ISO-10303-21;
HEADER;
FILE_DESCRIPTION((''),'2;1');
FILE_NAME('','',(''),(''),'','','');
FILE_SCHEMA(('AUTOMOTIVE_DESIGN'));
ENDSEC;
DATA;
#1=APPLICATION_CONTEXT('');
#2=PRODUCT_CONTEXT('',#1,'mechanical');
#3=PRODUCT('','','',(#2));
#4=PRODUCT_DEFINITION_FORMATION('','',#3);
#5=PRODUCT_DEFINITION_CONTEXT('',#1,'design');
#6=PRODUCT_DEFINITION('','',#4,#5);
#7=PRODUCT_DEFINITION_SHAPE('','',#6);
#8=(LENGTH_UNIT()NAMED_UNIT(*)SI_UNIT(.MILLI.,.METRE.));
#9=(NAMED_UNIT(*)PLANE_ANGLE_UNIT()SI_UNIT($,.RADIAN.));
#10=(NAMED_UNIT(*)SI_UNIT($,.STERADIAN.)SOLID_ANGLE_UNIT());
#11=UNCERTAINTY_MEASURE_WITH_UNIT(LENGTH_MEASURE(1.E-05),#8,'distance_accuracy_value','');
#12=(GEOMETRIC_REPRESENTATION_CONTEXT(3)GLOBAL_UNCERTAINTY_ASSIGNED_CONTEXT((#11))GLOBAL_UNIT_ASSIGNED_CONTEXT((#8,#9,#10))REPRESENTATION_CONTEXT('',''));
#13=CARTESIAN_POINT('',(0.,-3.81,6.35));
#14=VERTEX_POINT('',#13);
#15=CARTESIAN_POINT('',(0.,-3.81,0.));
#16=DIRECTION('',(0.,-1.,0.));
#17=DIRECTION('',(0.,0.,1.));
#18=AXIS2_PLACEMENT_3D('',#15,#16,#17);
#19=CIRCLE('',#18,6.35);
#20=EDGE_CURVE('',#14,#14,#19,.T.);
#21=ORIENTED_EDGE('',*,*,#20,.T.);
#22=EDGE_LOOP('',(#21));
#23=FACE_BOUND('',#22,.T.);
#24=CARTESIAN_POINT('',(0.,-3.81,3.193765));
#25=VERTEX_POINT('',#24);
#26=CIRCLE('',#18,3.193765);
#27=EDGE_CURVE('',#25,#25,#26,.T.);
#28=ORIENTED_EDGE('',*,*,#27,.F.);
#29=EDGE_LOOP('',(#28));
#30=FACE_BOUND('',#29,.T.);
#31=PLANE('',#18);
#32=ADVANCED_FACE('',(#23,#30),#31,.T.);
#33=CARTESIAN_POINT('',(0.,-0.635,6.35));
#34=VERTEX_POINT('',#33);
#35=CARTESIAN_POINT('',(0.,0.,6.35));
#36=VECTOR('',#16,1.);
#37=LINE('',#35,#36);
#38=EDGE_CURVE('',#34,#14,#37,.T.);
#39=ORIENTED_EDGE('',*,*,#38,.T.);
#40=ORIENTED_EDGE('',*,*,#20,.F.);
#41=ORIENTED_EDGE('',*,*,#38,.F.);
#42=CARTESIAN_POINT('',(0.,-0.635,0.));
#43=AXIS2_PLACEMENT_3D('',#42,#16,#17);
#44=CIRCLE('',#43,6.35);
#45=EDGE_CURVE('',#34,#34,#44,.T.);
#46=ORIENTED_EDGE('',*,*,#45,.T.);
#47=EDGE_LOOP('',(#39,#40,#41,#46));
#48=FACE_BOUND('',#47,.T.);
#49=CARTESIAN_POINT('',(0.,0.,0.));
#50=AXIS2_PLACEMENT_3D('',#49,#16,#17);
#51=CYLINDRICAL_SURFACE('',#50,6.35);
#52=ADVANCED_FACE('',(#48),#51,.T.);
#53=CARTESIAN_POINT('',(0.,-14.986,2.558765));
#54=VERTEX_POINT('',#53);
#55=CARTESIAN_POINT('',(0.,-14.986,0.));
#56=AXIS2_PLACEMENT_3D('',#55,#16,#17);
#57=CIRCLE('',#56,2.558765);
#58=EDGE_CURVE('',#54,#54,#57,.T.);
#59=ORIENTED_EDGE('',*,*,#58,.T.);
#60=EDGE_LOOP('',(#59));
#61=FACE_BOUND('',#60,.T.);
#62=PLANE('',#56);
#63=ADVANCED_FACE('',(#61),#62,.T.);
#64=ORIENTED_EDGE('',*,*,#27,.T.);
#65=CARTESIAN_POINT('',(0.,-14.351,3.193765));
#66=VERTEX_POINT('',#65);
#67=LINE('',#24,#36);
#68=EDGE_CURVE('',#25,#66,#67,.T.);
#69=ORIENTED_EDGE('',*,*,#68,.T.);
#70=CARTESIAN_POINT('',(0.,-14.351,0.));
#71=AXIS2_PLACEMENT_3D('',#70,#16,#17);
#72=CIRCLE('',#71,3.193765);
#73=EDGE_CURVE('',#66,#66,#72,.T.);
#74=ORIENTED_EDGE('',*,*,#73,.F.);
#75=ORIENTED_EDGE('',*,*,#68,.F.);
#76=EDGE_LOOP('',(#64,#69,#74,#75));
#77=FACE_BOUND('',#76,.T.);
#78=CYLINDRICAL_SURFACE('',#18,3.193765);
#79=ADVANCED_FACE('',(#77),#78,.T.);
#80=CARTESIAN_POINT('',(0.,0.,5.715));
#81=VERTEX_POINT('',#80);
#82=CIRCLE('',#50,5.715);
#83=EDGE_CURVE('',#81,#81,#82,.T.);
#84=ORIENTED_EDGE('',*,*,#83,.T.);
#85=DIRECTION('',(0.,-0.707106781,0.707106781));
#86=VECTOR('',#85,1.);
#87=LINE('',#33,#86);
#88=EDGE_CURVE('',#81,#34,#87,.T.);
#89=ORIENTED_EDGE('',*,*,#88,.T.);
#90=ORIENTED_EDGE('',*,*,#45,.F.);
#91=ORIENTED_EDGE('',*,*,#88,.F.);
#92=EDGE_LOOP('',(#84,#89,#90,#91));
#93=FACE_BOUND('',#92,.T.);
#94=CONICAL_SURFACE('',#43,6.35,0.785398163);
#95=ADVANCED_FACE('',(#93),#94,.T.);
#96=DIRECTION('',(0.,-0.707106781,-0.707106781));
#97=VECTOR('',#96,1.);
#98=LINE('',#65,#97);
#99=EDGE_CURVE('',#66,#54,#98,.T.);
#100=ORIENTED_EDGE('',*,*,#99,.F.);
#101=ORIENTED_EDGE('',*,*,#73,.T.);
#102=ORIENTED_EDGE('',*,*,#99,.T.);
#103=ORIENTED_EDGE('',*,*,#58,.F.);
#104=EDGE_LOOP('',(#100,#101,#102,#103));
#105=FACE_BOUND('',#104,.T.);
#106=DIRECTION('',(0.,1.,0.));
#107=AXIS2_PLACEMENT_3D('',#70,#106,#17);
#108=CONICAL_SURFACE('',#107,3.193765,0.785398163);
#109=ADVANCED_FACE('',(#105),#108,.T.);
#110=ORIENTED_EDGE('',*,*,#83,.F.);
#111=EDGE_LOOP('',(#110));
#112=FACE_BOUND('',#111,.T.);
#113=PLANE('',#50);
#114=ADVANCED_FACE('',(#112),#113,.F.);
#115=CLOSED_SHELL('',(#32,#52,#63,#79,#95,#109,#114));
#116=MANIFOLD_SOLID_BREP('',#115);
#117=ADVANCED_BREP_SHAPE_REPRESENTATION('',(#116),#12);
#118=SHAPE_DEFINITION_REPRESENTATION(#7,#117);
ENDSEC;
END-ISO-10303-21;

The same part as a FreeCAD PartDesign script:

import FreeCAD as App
import Part
import Sketcher

V = App.Vector
Q = App.Units.Quantity


def edges_at(feature, points):
    """Names of the edges that pass closest to the given points."""
    edges = feature.Shape.Edges
    near = lambda p: min(range(len(edges)), key=lambda i: edges[i].distToShape(Part.Vertex(*p))[0])
    return sorted({f"Edge{near(p) + 1}" for p in points})


def add_polygon(sketch, points):
    """Adds a closed chain of lines whose ends are joined by coincident constraints."""
    first, n = sketch.GeometryCount, len(points)
    for a, b in zip(points, points[1:] + points[:1]):
        sketch.addGeometry(Part.LineSegment(App.Vector(*a, 0), App.Vector(*b, 0)), False)
    for i in range(n):
        sketch.addConstraint(Sketcher.Constraint("Coincident", first + i, 2, first + (i + 1) % n, 1))

doc = App.newDocument("Part")
body = doc.addObject("PartDesign::Body", "Body")

sketch1 = doc.addObject("Sketcher::SketchObject", "Sketch")
body.addObject(sketch1)
sketch1.AttachmentSupport = (doc.YZ_Plane, [""])
sketch1.MapMode = "FlatFace"
add_polygon(sketch1, [(-14.986, 0), (0, 0), (0, 6.35), (-3.81, 6.35), (-3.81, 3.193765), (-14.986, 3.193765)])
sketch1.addConstraint(Sketcher.Constraint("Horizontal", 0))
sketch1.addConstraint(Sketcher.Constraint("Vertical", 1))
sketch1.addConstraint(Sketcher.Constraint("Horizontal", 2))
sketch1.addConstraint(Sketcher.Constraint("Vertical", 3))
sketch1.addConstraint(Sketcher.Constraint("Horizontal", 4))
sketch1.addConstraint(Sketcher.Constraint("Vertical", 5))
sketch1.addConstraint(Sketcher.Constraint("Coincident", 0, 2, -1, 1))
sketch1.addConstraint(Sketcher.Constraint("DistanceX", 0, 1, 0, 2, Q("0.59 in")))
sketch1.addConstraint(Sketcher.Constraint("DistanceX", 2, 2, 2, 1, Q("0.15 in")))
sketch1.addConstraint(Sketcher.Constraint("DistanceY", 1, 1, 1, 2, Q("0.25 in")))
sketch1.addConstraint(Sketcher.Constraint("DistanceY", 3, 2, 3, 1, 3.156235))
revolution = doc.addObject("PartDesign::Revolution", "Revolution")
body.addObject(revolution)
revolution.Profile = sketch1
revolution.ReferenceAxis = (sketch1, ["H_Axis"])
revolution.Angle = 360
doc.recompute()

chamfer = doc.addObject("PartDesign::Chamfer", "Chamfer")
body.addObject(chamfer)
chamfer.Base = (revolution, edges_at(revolution, [(0, -14.986, -3.194), (0, 0, -6.35)]))
chamfer.Size = Q("0.025 in")

doc.recompute()
